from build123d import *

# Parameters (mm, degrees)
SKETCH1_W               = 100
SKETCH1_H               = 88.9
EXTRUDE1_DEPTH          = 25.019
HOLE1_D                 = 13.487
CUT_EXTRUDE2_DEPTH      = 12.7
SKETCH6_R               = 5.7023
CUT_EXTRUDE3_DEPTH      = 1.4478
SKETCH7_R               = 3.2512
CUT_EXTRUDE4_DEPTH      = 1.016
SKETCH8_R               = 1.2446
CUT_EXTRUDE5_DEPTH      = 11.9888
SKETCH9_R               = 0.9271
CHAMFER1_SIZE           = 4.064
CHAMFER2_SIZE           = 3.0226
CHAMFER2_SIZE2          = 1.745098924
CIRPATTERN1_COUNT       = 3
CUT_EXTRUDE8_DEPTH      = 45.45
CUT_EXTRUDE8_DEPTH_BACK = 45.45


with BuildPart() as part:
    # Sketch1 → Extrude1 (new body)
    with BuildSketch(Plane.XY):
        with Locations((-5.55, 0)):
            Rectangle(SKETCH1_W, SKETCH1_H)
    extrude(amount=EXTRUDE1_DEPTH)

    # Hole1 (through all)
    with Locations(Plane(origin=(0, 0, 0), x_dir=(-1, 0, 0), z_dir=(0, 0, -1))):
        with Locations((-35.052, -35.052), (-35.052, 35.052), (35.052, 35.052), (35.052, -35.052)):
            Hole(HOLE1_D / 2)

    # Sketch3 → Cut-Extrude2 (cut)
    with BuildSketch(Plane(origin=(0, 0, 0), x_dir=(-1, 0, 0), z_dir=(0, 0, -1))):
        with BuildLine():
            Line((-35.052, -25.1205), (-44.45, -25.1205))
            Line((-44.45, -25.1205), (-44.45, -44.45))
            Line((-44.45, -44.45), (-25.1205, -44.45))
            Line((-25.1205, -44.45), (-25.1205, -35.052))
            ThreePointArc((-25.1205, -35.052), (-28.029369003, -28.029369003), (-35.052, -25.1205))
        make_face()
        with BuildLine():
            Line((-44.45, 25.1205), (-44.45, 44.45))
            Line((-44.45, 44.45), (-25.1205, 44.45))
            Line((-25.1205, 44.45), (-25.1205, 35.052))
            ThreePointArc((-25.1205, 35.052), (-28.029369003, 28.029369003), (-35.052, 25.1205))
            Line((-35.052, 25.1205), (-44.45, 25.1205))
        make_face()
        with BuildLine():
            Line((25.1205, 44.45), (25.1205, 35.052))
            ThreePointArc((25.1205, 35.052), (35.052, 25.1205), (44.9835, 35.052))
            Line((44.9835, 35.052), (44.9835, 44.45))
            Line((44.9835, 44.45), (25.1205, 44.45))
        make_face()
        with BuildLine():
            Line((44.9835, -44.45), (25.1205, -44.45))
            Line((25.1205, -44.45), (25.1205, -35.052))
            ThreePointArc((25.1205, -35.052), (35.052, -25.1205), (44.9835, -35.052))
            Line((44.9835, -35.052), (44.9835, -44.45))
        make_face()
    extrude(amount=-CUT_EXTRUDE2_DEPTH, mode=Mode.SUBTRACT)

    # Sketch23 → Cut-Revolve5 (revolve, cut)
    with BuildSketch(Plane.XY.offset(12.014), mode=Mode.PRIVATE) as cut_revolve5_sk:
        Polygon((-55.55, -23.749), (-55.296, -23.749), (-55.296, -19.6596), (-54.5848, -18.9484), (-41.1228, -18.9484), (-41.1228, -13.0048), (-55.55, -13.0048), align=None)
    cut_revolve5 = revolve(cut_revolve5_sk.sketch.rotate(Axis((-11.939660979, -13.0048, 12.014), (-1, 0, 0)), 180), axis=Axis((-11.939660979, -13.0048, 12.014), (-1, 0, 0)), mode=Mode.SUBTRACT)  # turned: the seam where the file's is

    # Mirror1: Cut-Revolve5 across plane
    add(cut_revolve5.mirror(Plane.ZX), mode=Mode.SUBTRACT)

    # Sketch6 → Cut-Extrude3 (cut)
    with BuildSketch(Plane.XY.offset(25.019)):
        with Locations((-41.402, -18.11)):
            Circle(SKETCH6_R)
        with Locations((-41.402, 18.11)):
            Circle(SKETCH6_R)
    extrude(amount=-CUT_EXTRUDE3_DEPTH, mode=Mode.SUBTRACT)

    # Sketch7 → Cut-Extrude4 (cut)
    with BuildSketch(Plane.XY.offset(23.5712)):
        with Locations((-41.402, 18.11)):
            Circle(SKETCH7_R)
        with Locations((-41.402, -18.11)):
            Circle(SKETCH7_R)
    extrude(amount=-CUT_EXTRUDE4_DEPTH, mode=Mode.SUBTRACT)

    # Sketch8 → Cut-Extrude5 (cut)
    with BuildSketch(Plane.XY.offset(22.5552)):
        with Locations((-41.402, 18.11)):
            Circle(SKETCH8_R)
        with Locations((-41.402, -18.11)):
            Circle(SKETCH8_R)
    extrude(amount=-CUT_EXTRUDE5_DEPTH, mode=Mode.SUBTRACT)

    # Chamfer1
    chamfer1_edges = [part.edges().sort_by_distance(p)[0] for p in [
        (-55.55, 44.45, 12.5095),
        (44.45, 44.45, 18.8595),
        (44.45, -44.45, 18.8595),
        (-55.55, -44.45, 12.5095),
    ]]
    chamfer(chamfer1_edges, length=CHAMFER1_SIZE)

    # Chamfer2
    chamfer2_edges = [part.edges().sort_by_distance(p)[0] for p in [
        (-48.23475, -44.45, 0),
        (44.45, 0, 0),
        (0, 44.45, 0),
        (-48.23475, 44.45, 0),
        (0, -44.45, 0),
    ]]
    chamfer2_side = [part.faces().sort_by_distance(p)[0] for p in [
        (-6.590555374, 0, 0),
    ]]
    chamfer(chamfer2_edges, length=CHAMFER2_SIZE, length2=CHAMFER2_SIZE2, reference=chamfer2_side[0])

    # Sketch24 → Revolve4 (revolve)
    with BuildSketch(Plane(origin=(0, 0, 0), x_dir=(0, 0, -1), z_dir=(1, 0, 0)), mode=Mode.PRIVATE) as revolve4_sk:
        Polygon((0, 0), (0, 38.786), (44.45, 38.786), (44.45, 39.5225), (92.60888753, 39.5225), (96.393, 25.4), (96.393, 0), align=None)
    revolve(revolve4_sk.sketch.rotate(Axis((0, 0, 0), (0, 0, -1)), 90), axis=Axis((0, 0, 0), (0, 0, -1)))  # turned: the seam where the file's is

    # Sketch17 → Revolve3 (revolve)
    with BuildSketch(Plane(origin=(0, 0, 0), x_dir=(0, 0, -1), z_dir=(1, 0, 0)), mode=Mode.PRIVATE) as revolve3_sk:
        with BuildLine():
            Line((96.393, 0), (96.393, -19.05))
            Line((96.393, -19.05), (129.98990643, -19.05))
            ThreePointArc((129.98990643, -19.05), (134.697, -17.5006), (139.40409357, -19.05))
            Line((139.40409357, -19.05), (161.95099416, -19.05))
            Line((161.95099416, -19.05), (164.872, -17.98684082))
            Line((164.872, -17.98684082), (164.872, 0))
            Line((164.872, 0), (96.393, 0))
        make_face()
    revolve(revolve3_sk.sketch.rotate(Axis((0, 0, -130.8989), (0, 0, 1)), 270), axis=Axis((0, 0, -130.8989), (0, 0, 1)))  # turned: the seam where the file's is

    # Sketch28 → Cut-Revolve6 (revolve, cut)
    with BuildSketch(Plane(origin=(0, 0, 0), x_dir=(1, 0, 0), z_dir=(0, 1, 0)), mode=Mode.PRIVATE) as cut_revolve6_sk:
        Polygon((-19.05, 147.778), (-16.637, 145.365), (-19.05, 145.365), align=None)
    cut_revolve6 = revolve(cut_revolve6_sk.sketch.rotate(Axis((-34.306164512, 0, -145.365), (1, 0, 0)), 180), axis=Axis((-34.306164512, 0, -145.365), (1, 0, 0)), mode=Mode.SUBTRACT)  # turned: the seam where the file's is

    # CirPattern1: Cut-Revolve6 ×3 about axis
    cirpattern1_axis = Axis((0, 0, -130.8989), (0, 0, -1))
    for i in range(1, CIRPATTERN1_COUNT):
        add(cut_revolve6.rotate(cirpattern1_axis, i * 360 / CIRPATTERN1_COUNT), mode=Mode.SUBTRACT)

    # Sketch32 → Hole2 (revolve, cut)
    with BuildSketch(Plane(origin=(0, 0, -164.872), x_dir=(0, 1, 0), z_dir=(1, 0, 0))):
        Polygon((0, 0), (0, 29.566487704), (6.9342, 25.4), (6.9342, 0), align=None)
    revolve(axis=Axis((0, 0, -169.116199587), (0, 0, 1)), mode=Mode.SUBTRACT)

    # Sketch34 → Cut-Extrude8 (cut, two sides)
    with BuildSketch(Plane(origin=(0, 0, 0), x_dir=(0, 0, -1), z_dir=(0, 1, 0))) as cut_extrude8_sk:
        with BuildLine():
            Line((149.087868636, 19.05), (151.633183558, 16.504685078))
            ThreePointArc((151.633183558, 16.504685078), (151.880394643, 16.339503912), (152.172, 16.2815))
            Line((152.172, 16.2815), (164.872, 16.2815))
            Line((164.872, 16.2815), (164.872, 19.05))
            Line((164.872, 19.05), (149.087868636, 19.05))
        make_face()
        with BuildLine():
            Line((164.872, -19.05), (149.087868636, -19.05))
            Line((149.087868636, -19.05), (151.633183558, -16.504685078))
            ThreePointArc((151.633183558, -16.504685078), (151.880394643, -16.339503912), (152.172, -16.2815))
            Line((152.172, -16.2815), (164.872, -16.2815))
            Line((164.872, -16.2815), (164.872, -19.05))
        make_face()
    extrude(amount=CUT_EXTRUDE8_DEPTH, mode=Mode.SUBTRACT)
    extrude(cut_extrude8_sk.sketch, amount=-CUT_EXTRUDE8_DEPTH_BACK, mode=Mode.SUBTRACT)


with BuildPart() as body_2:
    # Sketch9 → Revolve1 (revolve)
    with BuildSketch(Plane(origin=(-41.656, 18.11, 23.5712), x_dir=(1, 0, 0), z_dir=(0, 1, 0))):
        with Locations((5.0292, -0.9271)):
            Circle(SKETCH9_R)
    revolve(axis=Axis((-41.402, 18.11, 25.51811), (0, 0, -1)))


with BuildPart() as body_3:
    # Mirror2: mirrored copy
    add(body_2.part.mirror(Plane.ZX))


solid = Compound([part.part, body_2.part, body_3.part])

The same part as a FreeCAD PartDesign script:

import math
import FreeCAD as App
import Part
import Sketcher
from FreeCAD import Vector
Q = App.Units.Quantity


def edges_at(feature, points):
    """Names of the edges that pass closest to the given points."""
    edges = feature.Shape.Edges
    near = lambda p: min(range(len(edges)), key=lambda i: edges[i].distToShape(Part.Vertex(*p))[0])
    return sorted({f"Edge{near(p) + 1}" for p in points})

doc = App.newDocument("Part")
body = doc.addObject("PartDesign::Body", "Body")

sketch1 = doc.addObject("Sketcher::SketchObject", "Sketch")
body.addObject(sketch1)
sketch1.AttachmentSupport = (doc.XY_Plane, [""])
sketch1.MapMode = "FlatFace"
sketch1.addGeometry([
    Part.LineSegment(Vector(-56, 44, 0), Vector(-56, -44, 0)),
    Part.LineSegment(Vector(-56, -44, 0), Vector(44, -44, 0)),
    Part.LineSegment(Vector(44, -44, 0), Vector(44, 44, 0)),
    Part.LineSegment(Vector(44, 44, 0), Vector(-56, 44, 0)),
], False)
sketch1.addConstraint([
    Sketcher.Constraint("Coincident", 0, 2, 1, 1),
    Sketcher.Constraint("Coincident", 1, 2, 2, 1),
    Sketcher.Constraint("Coincident", 2, 2, 3, 1),
    Sketcher.Constraint("Coincident", 3, 2, 0, 1),
    Sketcher.Constraint("Vertical", 0),
    Sketcher.Constraint("Horizontal", 1),
    Sketcher.Constraint("Vertical", 2),
    Sketcher.Constraint("Horizontal", 3),
    Sketcher.Constraint("DistanceY", 0, 2, 0, 1, Q("3.5 in")),
    Sketcher.Constraint("DistanceY", 0, 2, -1, 1, Q("1.75 in")),
    Sketcher.Constraint("DistanceX", -1, 1, 1, 2, Q("1.75 in")),
    Sketcher.Constraint("DistanceX", 1, 1, 1, 2, 100.0),
])
pad1 = doc.addObject("PartDesign::Pad", "Pad")
body.addObject(pad1)
pad1.Profile = sketch1
pad1.Length = Q("0.985 in")

sketch2 = doc.addObject("Sketcher::SketchObject", "Sketch001")
body.addObject(sketch2)
sketch2.AttachmentSupport = (doc.XY_Plane, [""])
sketch2.MapMode = "FlatFace"
sketch2.addGeometry([
    Part.Circle(Vector(35, -35, 0), Vector(0, 0, 1), 7),
    Part.Circle(Vector(35, 35, 0), Vector(0, 0, 1), 7),
    Part.Circle(Vector(-35, 35, 0), Vector(0, 0, 1), 7),
    Part.Circle(Vector(-35, -35, 0), Vector(0, 0, 1), 7),
], False)
sketch2.addConstraint([
    Sketcher.Constraint("Equal", 0, 1),
    Sketcher.Constraint("Equal", 1, 2),
    Sketcher.Constraint("Equal", 2, 3),
    Sketcher.Constraint("Symmetric", 0, 3, 2, 3, -1, 1),
    Sketcher.Constraint("Symmetric", 1, 3, 3, 3, -1, 1),
    Sketcher.Constraint("Symmetric", 1, 3, 2, 3, -2),
    Sketcher.Constraint("Diameter", 0, 13.487),
    Sketcher.Constraint("DistanceX", -1, 1, 0, 3, Q("1.38 in")),
    Sketcher.Constraint("DistanceY", 0, 3, -1, 1, Q("1.38 in")),
])
doc.recompute()
hole = doc.addObject("PartDesign::Hole", "Hole")
body.addObject(hole)
hole.Profile = sketch2
hole.ThreadType = "None"
hole.Diameter = 13.487
hole.DepthType = "ThroughAll"
hole.Reversed = True

sketch3 = doc.addObject("Sketcher::SketchObject", "Sketch002")
body.addObject(sketch3)
sketch3.AttachmentSupport = (doc.XY_Plane, [""])
sketch3.MapMode = "FlatFace"
sketch3.addGeometry([
    Part.LineSegment(Vector(35, -25, 0), Vector(44, -25, 0)),
    Part.LineSegment(Vector(44, -25, 0), Vector(44, -44, 0)),
    Part.LineSegment(Vector(44, -44, 0), Vector(25, -44, 0)),
    Part.LineSegment(Vector(25, -44, 0), Vector(25, -35, 0)),
    Part.ArcOfCircle(Part.Circle(Vector(35, -35, 0), Vector(0, 0, 1), 10), math.radians(90), math.radians(180)),
    Part.LineSegment(Vector(44, 44, 0), Vector(44, 25, 0)),
    Part.LineSegment(Vector(44, 25, 0), Vector(35, 25, 0)),
    Part.ArcOfCircle(Part.Circle(Vector(35, 35, 0), Vector(0, 0, 1), 10), math.radians(-180), math.radians(-90)),
    Part.LineSegment(Vector(25, 35, 0), Vector(25, 44, 0)),
    Part.LineSegment(Vector(25, 44, 0), Vector(44, 44, 0)),
    Part.LineSegment(Vector(-25, 44, 0), Vector(-25, 35, 0)),
    Part.ArcOfCircle(Part.Circle(Vector(-35, 35, 0), Vector(0, 0, 1), 10), math.radians(180), math.radians(360)),
    Part.LineSegment(Vector(-45, 35, 0), Vector(-45, 44, 0)),
    Part.LineSegment(Vector(-45, 44, 0), Vector(-25, 44, 0)),
    Part.LineSegment(Vector(-25, -44, 0), Vector(-45, -44, 0)),
    Part.LineSegment(Vector(-45, -44, 0), Vector(-45, -35, 0)),
    Part.ArcOfCircle(Part.Circle(Vector(-35, -35, 0), Vector(0, 0, 1), 10), math.radians(0), math.radians(180)),
    Part.LineSegment(Vector(-25, -35, 0), Vector(-25, -44, 0)),
], False)
sketch3.addConstraint([
    Sketcher.Constraint("Coincident", 0, 2, 1, 1),
    Sketcher.Constraint("Coincident", 1, 2, 2, 1),
    Sketcher.Constraint("Coincident", 2, 2, 3, 1),
    Sketcher.Constraint("Tangent", 3, 2, 4, 2),
    Sketcher.Constraint("Tangent", 4, 1, 0, 1),
    Sketcher.Constraint("Coincident", 5, 2, 6, 1),
    Sketcher.Constraint("Tangent", 6, 2, 7, 2),
    Sketcher.Constraint("Tangent", 7, 1, 8, 1),
    Sketcher.Constraint("Coincident", 8, 2, 9, 1),
    Sketcher.Constraint("Coincident", 9, 2, 5, 1),
    Sketcher.Constraint("Tangent", 10, 2, 11, 2),
    Sketcher.Constraint("Tangent", 11, 1, 12, 1),
    Sketcher.Constraint("Coincident", 12, 2, 13, 1),
    Sketcher.Constraint("Coincident", 13, 2, 10, 1),
    Sketcher.Constraint("Coincident", 14, 2, 15, 1),
    Sketcher.Constraint("Tangent", 15, 2, 16, 2),
    Sketcher.Constraint("Tangent", 16, 1, 17, 1),
    Sketcher.Constraint("Coincident", 17, 2, 14, 1),
    Sketcher.Constraint("Horizontal", 0),
    Sketcher.Constraint("Vertical", 1),
    Sketcher.Constraint("Horizontal", 2),
    Sketcher.Constraint("Vertical", 3),
    Sketcher.Constraint("Vertical", 5),
    Sketcher.Constraint("Horizontal", 6),
    Sketcher.Constraint("Vertical", 8),
    Sketcher.Constraint("Horizontal", 9),
    Sketcher.Constraint("Vertical", 10),
    Sketcher.Constraint("Vertical", 12),
    Sketcher.Constraint("Horizontal", 13),
    Sketcher.Constraint("Horizontal", 14),
    Sketcher.Constraint("Vertical", 15),
    Sketcher.Constraint("Vertical", 17),
    Sketcher.Constraint("Equal", 4, 7),
    Sketcher.Constraint("Equal", 7, 11),
    Sketcher.Constraint("Equal", 11, 16),
    Sketcher.Constraint("Symmetric", 4, 3, 11, 3, -1, 1),
    Sketcher.Constraint("Symmetric", 7, 3, 16, 3, -1, 1),
    Sketcher.Constraint("Symmetric", 7, 3, 11, 3, -2),
    Sketcher.Constraint("Symmetric", 1, 2, 9, 2, -1),
    Sketcher.Constraint("Horizontal", 9, 2, 12, 2),
    Sketcher.Constraint("Horizontal", 2, 2, 14, 2),
    Sketcher.Constraint("Equal", 9, 1),
    Sketcher.Constraint("DistanceX", 0, 1, 0, 2, Q("0.37 in")),
    Sketcher.Constraint("DistanceX", -1, 1, 4, 3, Q("1.38 in")),
    Sketcher.Constraint("DistanceY", 4, 3, -1, 1, Q("1.38 in")),
    Sketcher.Constraint("Radius", 4, 9.9315),
])
pocket1 = doc.addObject("PartDesign::Pocket", "Pocket")
body.addObject(pocket1)
pocket1.Profile = sketch3
pocket1.Length = Q("0.5 in")
pocket1.Reversed = True

sketch4 = doc.addObject("Sketcher::SketchObject", "Sketch003")
body.addObject(sketch4)
sketch4.AttachmentSupport = (doc.XY_Plane, [""])
sketch4.MapMode = "FlatFace"
sketch4.AttachmentOffset = App.Placement(Vector(0, 0, 12.014), App.Rotation())
sketch4.addGeometry([
    Part.LineSegment(Vector(-55.55, -23.75, 0), Vector(-55.3, -23.75, 0)),
    Part.LineSegment(Vector(-55.3, -23.75, 0), Vector(-55.3, -19.66, 0)),
    Part.LineSegment(Vector(-55.3, -19.66, 0), Vector(-54.58, -18.95, 0)),
    Part.LineSegment(Vector(-54.58, -18.95, 0), Vector(-41.12, -18.95, 0)),
    Part.LineSegment(Vector(-41.12, -18.95, 0), Vector(-41.12, -13, 0)),
    Part.LineSegment(Vector(-41.12, -13, 0), Vector(-55.55, -13, 0)),
    Part.LineSegment(Vector(-55.55, -13, 0), Vector(-55.55, -23.75, 0)),
], False)
sketch4.addGeometry(Part.LineSegment(Vector(-41.12, -13, 0), Vector(-55.55, -13, 0)), True)
sketch4.addConstraint([
    Sketcher.Constraint("Coincident", 0, 2, 1, 1),
    Sketcher.Constraint("Coincident", 1, 2, 2, 1),
    Sketcher.Constraint("Coincident", 2, 2, 3, 1),
    Sketcher.Constraint("Coincident", 3, 2, 4, 1),
    Sketcher.Constraint("Coincident", 4, 2, 5, 1),
    Sketcher.Constraint("Coincident", 5, 2, 6, 1),
    Sketcher.Constraint("Coincident", 6, 2, 0, 1),
    Sketcher.Constraint("Horizontal", 0),
    Sketcher.Constraint("Vertical", 1),
    Sketcher.Constraint("Horizontal", 3),
    Sketcher.Constraint("Vertical", 4),
    Sketcher.Constraint("Horizontal", 5),
    Sketcher.Constraint("Vertical", 6),
    Sketcher.Constraint("Horizontal", 7),
    Sketcher.Constraint("Coincident", 7, 1, 4, 2),
    Sketcher.Constraint("Vertical", 6, 2, 7, 2),
    Sketcher.Constraint("Angle", 2, Q("45 deg")),
    Sketcher.Constraint("DistanceX", 0, 1, 0, 2, Q("0.01 in")),
    Sketcher.Constraint("DistanceX", 3, 1, 3, 2, Q("0.53 in")),
    Sketcher.Constraint("DistanceX", 5, 2, 5, 1, Q("0.568 in")),
    Sketcher.Constraint("DistanceY", 1, 1, 1, 2, Q("0.161 in")),
    Sketcher.Constraint("DistanceY", 4, 1, 4, 2, Q("0.234 in")),
    Sketcher.Constraint("DistanceY", 0, 2, -1, 1, Q("0.935 in")),
    Sketcher.Constraint("DistanceX", 0, 2, -1, 1, 55.296),
])
groove = doc.addObject("PartDesign::Groove", "Groove")
body.addObject(groove)
groove.Profile = sketch4
groove.ReferenceAxis = (sketch4, ["Axis0"])
groove.Angle = 360
doc.recompute()

mirrored = doc.addObject("PartDesign::Mirrored", "Mirrored")
body.addObject(mirrored)
mirrored.Originals = [groove]
mirrored.MirrorPlane = (doc.XZ_Plane, [""])
body.Tip = mirrored

sketch5 = doc.addObject("Sketcher::SketchObject", "Sketch004")
body.addObject(sketch5)
sketch5.AttachmentSupport = (doc.XY_Plane, [""])
sketch5.MapMode = "FlatFace"
sketch5.AttachmentOffset = App.Placement(Vector(0, 0, 0.985 * 25.4), App.Rotation())
sketch5.addGeometry([
    Part.Circle(Vector(-41, -18, 0), Vector(0, 0, 1), 6),
    Part.Circle(Vector(-41, 18, 0), Vector(0, 0, 1), 6),
], False)
sketch5.addConstraint([
    Sketcher.Constraint("Equal", 0, 1),
    Sketcher.Constraint("Symmetric", 0, 3, 1, 3, -1),
    Sketcher.Constraint("Diameter", 0, Q("0.449 in")),
    Sketcher.Constraint("DistanceX", 0, 3, -1, 1, Q("1.63 in")),
    Sketcher.Constraint("DistanceY", 0, 3, -1, 1, 18.11),
])
pocket2 = doc.addObject("PartDesign::Pocket", "Pocket001")
body.addObject(pocket2)
pocket2.Profile = sketch5
pocket2.Length = Q("0.057 in")

sketch6 = doc.addObject("Sketcher::SketchObject", "Sketch005")
body.addObject(sketch6)
sketch6.AttachmentSupport = (doc.XY_Plane, [""])
sketch6.MapMode = "FlatFace"
sketch6.AttachmentOffset = App.Placement(Vector(0, 0, 0.928 * 25.4), App.Rotation())
sketch6.addGeometry([
    Part.Circle(Vector(-41.4, 18.1, 0), Vector(0, 0, 1), 3.3),
    Part.Circle(Vector(-41.4, -18.1, 0), Vector(0, 0, 1), 3.3),
], False)
sketch6.addConstraint([
    Sketcher.Constraint("Equal", 0, 1),
    Sketcher.Constraint("Symmetric", 0, 3, 1, 3, -1),
    Sketcher.Constraint("Diameter", 0, Q("0.256 in")),
    Sketcher.Constraint("DistanceX", 0, 3, -1, 1, Q("1.63 in")),
    Sketcher.Constraint("DistanceY", -1, 1, 0, 3, 18.11),
])
pocket3 = doc.addObject("PartDesign::Pocket", "Pocket002")
body.addObject(pocket3)
pocket3.Profile = sketch6
pocket3.Length = Q("0.04 in")

sketch7 = doc.addObject("Sketcher::SketchObject", "Sketch006")
body.addObject(sketch7)
sketch7.AttachmentSupport = (doc.XY_Plane, [""])
sketch7.MapMode = "FlatFace"
sketch7.AttachmentOffset = App.Placement(Vector(0, 0, 0.888 * 25.4), App.Rotation())
sketch7.addGeometry([
    Part.Circle(Vector(-41.4, 18.1, 0), Vector(0, 0, 1), 1.2),
    Part.Circle(Vector(-41.4, -18.1, 0), Vector(0, 0, 1), 1.2),
], False)
sketch7.addConstraint([
    Sketcher.Constraint("Equal", 0, 1),
    Sketcher.Constraint("Symmetric", 0, 3, 1, 3, -1),
    Sketcher.Constraint("Diameter", 0, Q("0.098 in")),
    Sketcher.Constraint("DistanceX", 0, 3, -1, 1, Q("1.63 in")),
    Sketcher.Constraint("DistanceY", -1, 1, 0, 3, 18.11),
])
pocket4 = doc.addObject("PartDesign::Pocket", "Pocket003")
body.addObject(pocket4)
pocket4.Profile = sketch7
pocket4.Length = Q("0.472 in")
doc.recompute()

chamfer = doc.addObject("PartDesign::Chamfer", "Chamfer")
body.addObject(chamfer)
chamfer.Base = (pocket4, edges_at(pocket4, [
    (-55.55, 44.45, 12.509),
    (44.45, 44.45, 18.86),
    (44.45, -44.45, 18.86),
    (-55.55, -44.45, 12.509),
]))
chamfer.Size = Q("0.16 in")
doc.recompute()

chamfer2 = doc.addObject("PartDesign::Chamfer", "Chamfer001")
body.addObject(chamfer2)
chamfer2.Base = (chamfer, edges_at(chamfer, [
    (-48.235, -44.45, 0),
    (44.45, 0, 0),
    (0, 44.45, 0),
    (-48.235, 44.45, 0),
    (0, -44.45, 0),
]))
chamfer2.ChamferType = "Two distances"
chamfer2.Size = Q("0.119 in")
chamfer2.Size2 = 1.745099

sketch8 = doc.addObject("Sketcher::SketchObject", "Sketch007")
body.addObject(sketch8)
sketch8.AttachmentSupport = (doc.YZ_Plane, [""])
sketch8.MapMode = "FlatFace"
sketch8.addGeometry([
    Part.LineSegment(Vector(38.8, 0, 0), Vector(0, 0, 0)),
    Part.LineSegment(Vector(0, 0, 0), Vector(0, -96.4, 0)),
    Part.LineSegment(Vector(0, -96.4, 0), Vector(25.4, -96.4, 0)),
    Part.LineSegment(Vector(25.4, -96.4, 0), Vector(39.5, -92.6, 0)),
    Part.LineSegment(Vector(39.5, -92.6, 0), Vector(39.5, -44.5, 0)),
    Part.LineSegment(Vector(39.5, -44.5, 0), Vector(38.8, -44.5, 0)),
    Part.LineSegment(Vector(38.8, -44.5, 0), Vector(38.8, 0, 0)),
], False)
sketch8.addConstraint([
    Sketcher.Constraint("Coincident", 0, 2, 1, 1),
    Sketcher.Constraint("Coincident", 1, 2, 2, 1),
    Sketcher.Constraint("Coincident", 2, 2, 3, 1),
    Sketcher.Constraint("Coincident", 3, 2, 4, 1),
    Sketcher.Constraint("Coincident", 4, 2, 5, 1),
    Sketcher.Constraint("Coincident", 5, 2, 6, 1),
    Sketcher.Constraint("Coincident", 6, 2, 0, 1),
    Sketcher.Constraint("Horizontal", 0),
    Sketcher.Constraint("Vertical", 1),
    Sketcher.Constraint("Horizontal", 2),
    Sketcher.Constraint("Vertical", 4),
    Sketcher.Constraint("Horizontal", 5),
    Sketcher.Constraint("Vertical", 6),
    Sketcher.Constraint("Coincident", 0, 2, -1, 1),
    Sketcher.Constraint("DistanceX", 2, 1, 2, 2, Q("1 in")),
    Sketcher.Constraint("Angle", 3, Q("15 deg")),
    Sketcher.Constraint("DistanceY", 6, 1, 6, 2, Q("1.75 in")),
    Sketcher.Constraint("DistanceY", 1, 2, 1, 1, Q("3.795 in")),
    Sketcher.Constraint("DistanceX", 0, 2, 0, 1, 38.786),
    Sketcher.Constraint("DistanceX", 5, 2, 5, 1, 0.7365),
])
revolution = doc.addObject("PartDesign::Revolution", "Revolution")
body.addObject(revolution)
revolution.Profile = sketch8
revolution.ReferenceAxis = (sketch8, ["V_Axis"])
revolution.Angle = 360

sketch9 = doc.addObject("Sketcher::SketchObject", "Sketch008")
body.addObject(sketch9)
sketch9.AttachmentSupport = (doc.YZ_Plane, [""])
sketch9.MapMode = "FlatFace"
sketch9.addGeometry([
    Part.LineSegment(Vector(0, -96.4, 0), Vector(-19.1, -96.4, 0)),
    Part.LineSegment(Vector(-19.1, -96.4, 0), Vector(-19.1, -130, 0)),
    Part.ArcOfCircle(Part.Circle(Vector(-25.4, -134.7, 0), Vector(0, 0, 1), 7.9), math.radians(-36), math.radians(36)),
    Part.LineSegment(Vector(-19.1, -139.4, 0), Vector(-19.1, -162, 0)),
    Part.LineSegment(Vector(-19.1, -162, 0), Vector(-18, -164.9, 0)),
    Part.LineSegment(Vector(-18, -164.9, 0), Vector(0, -164.9, 0)),
    Part.LineSegment(Vector(0, -164.9, 0), Vector(0, -96.4, 0)),
], False)
sketch9.addConstraint([
    Sketcher.Constraint("Coincident", 0, 2, 1, 1),
    Sketcher.Constraint("Coincident", 1, 2, 2, 2),
    Sketcher.Constraint("Coincident", 2, 1, 3, 1),
    Sketcher.Constraint("Coincident", 3, 2, 4, 1),
    Sketcher.Constraint("Coincident", 4, 2, 5, 1),
    Sketcher.Constraint("Coincident", 5, 2, 6, 1),
    Sketcher.Constraint("Coincident", 6, 2, 0, 1),
    Sketcher.Constraint("Horizontal", 0),
    Sketcher.Constraint("Vertical", 1),
    Sketcher.Constraint("Vertical", 3),
    Sketcher.Constraint("Horizontal", 5),
    Sketcher.Constraint("Vertical", 6),
    Sketcher.Constraint("PointOnObject", 5, 2, -2),
    Sketcher.Constraint("Vertical", 1, 2, 2, 1),
    Sketcher.Constraint("Angle", 4, Q("-70 deg")),
    Sketcher.Constraint("Radius", 2, Q("0.312 in")),
    Sketcher.Constraint("DistanceX", 0, 2, 0, 1, Q("0.75 in")),
    Sketcher.Constraint("DistanceX", 2, 3, -1, 1, Q("1.001 in")),
    Sketcher.Constraint("DistanceY", 0, 2, -1, 1, Q("3.795 in")),
    Sketcher.Constraint("DistanceY", 3, 2, 3, 1, 22.546901),
    Sketcher.Constraint("DistanceY", 6, 1, 6, 2, 68.479),
    Sketcher.Constraint("DistanceX", 5, 1, 5, 2, 17.986841),
])
revolution2 = doc.addObject("PartDesign::Revolution", "Revolution001")
body.addObject(revolution2)
revolution2.Profile = sketch9
revolution2.ReferenceAxis = (sketch9, ["V_Axis"])
revolution2.Angle = 360

sketch10 = doc.addObject("Sketcher::SketchObject", "Sketch009")
body.addObject(sketch10)
sketch10.AttachmentSupport = (doc.XZ_Plane, [""])
sketch10.MapMode = "FlatFace"
sketch10.addGeometry([
    Part.LineSegment(Vector(-16.6, -145.4, 0), Vector(-19.1, -147.8, 0)),
    Part.LineSegment(Vector(-19.1, -147.8, 0), Vector(-19.1, -145.4, 0)),
    Part.LineSegment(Vector(-19.1, -145.4, 0), Vector(-16.6, -145.4, 0)),
], False)
sketch10.addGeometry(Part.LineSegment(Vector(-19.1, -145.4, 0), Vector(-16.6, -145.4, 0)), True)
sketch10.addConstraint([
    Sketcher.Constraint("Coincident", 0, 2, 1, 1),
    Sketcher.Constraint("Coincident", 1, 2, 2, 1),
    Sketcher.Constraint("Coincident", 2, 2, 0, 1),
    Sketcher.Constraint("Vertical", 1),
    Sketcher.Constraint("Horizontal", 2),
    Sketcher.Constraint("Horizontal", 3),
    Sketcher.Constraint("Coincident", 3, 1, 1, 2),
    Sketcher.Constraint("Equal", 2, 3),
    Sketcher.Constraint("Equal", 3, 1),
    Sketcher.Constraint("DistanceX", 2, 1, 2, 2, Q("0.095 in")),
    Sketcher.Constraint("DistanceX", 0, 2, -1, 1, Q("0.75 in")),
    Sketcher.Constraint("DistanceY", 0, 2, -1, 1, 147.778),
])
groove2 = doc.addObject("PartDesign::Groove", "Groove001")
body.addObject(groove2)
groove2.Profile = sketch10
groove2.ReferenceAxis = (sketch10, ["Axis0"])
groove2.Angle = 360
doc.recompute()

polarpattern = doc.addObject("PartDesign::PolarPattern", "PolarPattern")
body.addObject(polarpattern)
polarpattern.Originals = [groove2]
polarpattern.Axis = (doc.Z_Axis, [""])
polarpattern.Angle = 360
polarpattern.Occurrences = 3
body.Tip = polarpattern

sketch11 = doc.addObject("Sketcher::SketchObject", "Sketch010")
body.addObject(sketch11)
sketch11.AttachmentSupport = (doc.YZ_Plane, [""])
sketch11.MapMode = "FlatFace"
sketch11.addGeometry([
    Part.LineSegment(Vector(0, -135, 0), Vector(0, -165, 0)),
    Part.LineSegment(Vector(0, -165, 0), Vector(7, -165, 0)),
    Part.LineSegment(Vector(7, -165, 0), Vector(7, -139, 0)),
    Part.LineSegment(Vector(7, -139, 0), Vector(0, -135, 0)),
], False)
sketch11.addConstraint([
    Sketcher.Constraint("Coincident", 0, 2, 1, 1),
    Sketcher.Constraint("Coincident", 1, 2, 2, 1),
    Sketcher.Constraint("Coincident", 2, 2, 3, 1),
    Sketcher.Constraint("Coincident", 3, 2, 0, 1),
    Sketcher.Constraint("Vertical", 0),
    Sketcher.Constraint("Horizontal", 1),
    Sketcher.Constraint("Vertical", 2),
    Sketcher.Constraint("PointOnObject", 0, 2, -2),
    Sketcher.Constraint("DistanceY", 2, 1, 2, 2, Q("1 in")),
    Sketcher.Constraint("Angle", 3, Q("149 deg")),
    Sketcher.Constraint("DistanceX", 1, 1, 1, 2, Q("0.273 in")),
    Sketcher.Constraint("DistanceY", 0, 2, -1, 1, 164.872),
])
groove3 = doc.addObject("PartDesign::Groove", "Groove002")
body.addObject(groove3)
groove3.Profile = sketch11
groove3.ReferenceAxis = (sketch11, ["V_Axis"])
groove3.Angle = 360

sketch12 = doc.addObject("Sketcher::SketchObject", "Sketch011")
body.addObject(sketch12)
sketch12.AttachmentSupport = (doc.XZ_Plane, [""])
sketch12.MapMode = "FlatFace"
sketch12.addGeometry([
    Part.LineSegment(Vector(-19.1, -149.1, 0), Vector(-16.5, -151.6, 0)),
    Part.ArcOfCircle(Part.Circle(Vector(-17, -152.2, 0), Vector(0, 0, 1), 0.8), math.radians(0), math.radians(45)),
    Part.LineSegment(Vector(-16.3, -152.2, 0), Vector(-16.3, -164.9, 0)),
    Part.LineSegment(Vector(-16.3, -164.9, 0), Vector(-19.1, -164.9, 0)),
    Part.LineSegment(Vector(-19.1, -164.9, 0), Vector(-19.1, -149.1, 0)),
    Part.LineSegment(Vector(19.1, -149.1, 0), Vector(19.1, -164.9, 0)),
    Part.LineSegment(Vector(19.1, -164.9, 0), Vector(16.3, -164.9, 0)),
    Part.LineSegment(Vector(16.3, -164.9, 0), Vector(16.3, -152.2, 0)),
    Part.ArcOfCircle(Part.Circle(Vector(17, -152.2, 0), Vector(0, 0, 1), 0.8), math.radians(135), math.radians(180)),
    Part.LineSegment(Vector(16.5, -151.6, 0), Vector(19.1, -149.1, 0)),
], False)
sketch12.addConstraint([
    Sketcher.Constraint("Tangent", 0, 2, 1, 2),
    Sketcher.Constraint("Tangent", 1, 1, 2, 1),
    Sketcher.Constraint("Coincident", 2, 2, 3, 1),
    Sketcher.Constraint("Coincident", 3, 2, 4, 1),
    Sketcher.Constraint("Coincident", 4, 2, 0, 1),
    Sketcher.Constraint("Coincident", 5, 2, 6, 1),
    Sketcher.Constraint("Coincident", 6, 2, 7, 1),
    Sketcher.Constraint("Tangent", 7, 2, 8, 2),
    Sketcher.Constraint("Tangent", 8, 1, 9, 1),
    Sketcher.Constraint("Coincident", 9, 2, 5, 1),
    Sketcher.Constraint("Vertical", 2),
    Sketcher.Constraint("Horizontal", 3),
    Sketcher.Constraint("Vertical", 4),
    Sketcher.Constraint("Vertical", 5),
    Sketcher.Constraint("Horizontal", 6),
    Sketcher.Constraint("Vertical", 7),
    Sketcher.Constraint("Equal", 1, 8),
    Sketcher.Constraint("Symmetric", 1, 3, 8, 3, -2),
    Sketcher.Constraint("Symmetric", 3, 2, 5, 2, -2),
    Sketcher.Constraint("Perpendicular", 0, 9),
    Sketcher.Constraint("Horizontal", 0, 2, 8, 1),
    Sketcher.Constraint("Radius", 1, Q("0.0300001 in")),
    Sketcher.Constraint("DistanceY", 2, 2, 2, 1, Q("0.5 in")),
    Sketcher.Constraint("DistanceX", 3, 2, 5, 2, Q("1.5 in")),
    Sketcher.Constraint("DistanceX", 3, 2, 3, 1, 2.7685),
    Sketcher.Constraint("DistanceY", 1, 3, -1, 1, 152.172),
])
pocket5 = doc.addObject("PartDesign::Pocket", "Pocket004")
body.addObject(pocket5)
pocket5.Profile = sketch12
pocket5.Type = "ThroughAll"
pocket5.Midplane = True
body2 = doc.addObject("PartDesign::Body", "Body001")

sketch13 = doc.addObject("Sketcher::SketchObject", "Sketch012")
body2.addObject(sketch13)
sketch13.AttachmentSupport = (doc.getObject("XZ_Plane001"), [""])
sketch13.MapMode = "FlatFace"
sketch13.AttachmentOffset = App.Placement(Vector(0, 0, -18.11), App.Rotation())
sketch13.addGeometry(Part.Circle(Vector(-36.6, 24.5, 0), Vector(0, 0, 1), 0.9), False)
sketch13.addGeometry(Part.LineSegment(Vector(-41.4, 24.5, 0), Vector(-41.4, 14.5, 0)), True)
sketch13.addConstraint([
    Sketcher.Constraint("Vertical", 1),
    Sketcher.Constraint("Horizontal", 0, 3, 1, 1),
    Sketcher.Constraint("Diameter", 0, Q("0.073 in")),
    Sketcher.Constraint("DistanceX", 1, 1, -1, 1, Q("1.63 in")),
    Sketcher.Constraint("DistanceX", 0, 3, -1, 1, Q("1.442 in")),
    Sketcher.Constraint("DistanceY", 1, 2, 1, 1, 10.0),
    Sketcher.Constraint("DistanceY", -1, 1, 0, 3, Q("0.9645 in")),
])
revolution3 = doc.addObject("PartDesign::Revolution", "Revolution002")
body2.addObject(revolution3)
revolution3.Profile = sketch13
revolution3.ReferenceAxis = (sketch13, ["Axis0"])
revolution3.Angle = 360
body3 = doc.addObject("PartDesign::Body", "Body002")
doc.recompute()

mirroring = doc.addObject("Part::Mirroring", "Mirroring")
mirroring.Source = body2
mirroring.Base = Vector(0, 0, 0)
mirroring.Normal = Vector(0, 1, 0)
body3.BaseFeature = mirroring
doc.recompute()
mirroring.Visibility = False

doc.recompute()
